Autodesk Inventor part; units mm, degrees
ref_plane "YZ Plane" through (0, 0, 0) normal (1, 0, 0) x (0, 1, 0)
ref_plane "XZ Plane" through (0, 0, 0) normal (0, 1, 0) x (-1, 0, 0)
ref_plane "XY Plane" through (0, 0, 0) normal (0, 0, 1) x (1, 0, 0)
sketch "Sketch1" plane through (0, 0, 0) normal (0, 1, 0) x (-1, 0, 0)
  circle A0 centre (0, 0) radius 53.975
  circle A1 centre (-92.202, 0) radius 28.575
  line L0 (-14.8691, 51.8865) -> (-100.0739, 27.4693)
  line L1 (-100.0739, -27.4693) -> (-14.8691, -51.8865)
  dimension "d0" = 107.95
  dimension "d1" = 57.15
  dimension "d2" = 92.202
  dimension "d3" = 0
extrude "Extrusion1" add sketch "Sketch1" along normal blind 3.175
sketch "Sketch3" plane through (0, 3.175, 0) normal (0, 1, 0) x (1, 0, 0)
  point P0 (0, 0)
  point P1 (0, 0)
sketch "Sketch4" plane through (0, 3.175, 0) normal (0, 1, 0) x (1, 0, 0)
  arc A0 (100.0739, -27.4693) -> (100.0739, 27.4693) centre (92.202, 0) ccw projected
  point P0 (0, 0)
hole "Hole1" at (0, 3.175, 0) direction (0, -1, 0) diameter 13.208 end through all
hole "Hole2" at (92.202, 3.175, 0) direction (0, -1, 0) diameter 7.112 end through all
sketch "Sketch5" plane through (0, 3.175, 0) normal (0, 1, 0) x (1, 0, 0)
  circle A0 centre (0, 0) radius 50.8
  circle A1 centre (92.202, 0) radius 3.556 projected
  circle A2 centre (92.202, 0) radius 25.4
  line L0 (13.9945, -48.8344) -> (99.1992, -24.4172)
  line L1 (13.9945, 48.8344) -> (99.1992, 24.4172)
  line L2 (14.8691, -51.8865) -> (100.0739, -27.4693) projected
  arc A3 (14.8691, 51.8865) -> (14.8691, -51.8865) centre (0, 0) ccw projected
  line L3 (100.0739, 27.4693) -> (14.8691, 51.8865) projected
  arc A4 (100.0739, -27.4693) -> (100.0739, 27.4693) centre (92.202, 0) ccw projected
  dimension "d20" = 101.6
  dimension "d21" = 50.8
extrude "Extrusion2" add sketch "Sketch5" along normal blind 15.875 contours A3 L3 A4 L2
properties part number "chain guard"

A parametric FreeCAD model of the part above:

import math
import FreeCAD as App
import Part
import Sketcher
Q = App.Units.Quantity

doc = App.newDocument("Part")
body = doc.addObject("PartDesign::Body", "Body")

sketch1 = doc.addObject("Sketcher::SketchObject", "Sketch")
body.addObject(sketch1)
sketch1.AttachmentSupport = (doc.XZ_Plane, [""])
sketch1.MapMode = "FlatFace"
sketch1.addGeometry([
    Part.ArcOfCircle(Part.Circle(App.Vector(0, 0, 0), App.Vector(0, 0, 1), 53.975), math.radians(74.0093), math.radians(285.9907)),
    Part.LineSegment(App.Vector(14.8691, 51.8865, 0), App.Vector(100.0739, 27.4693, 0)),
    Part.ArcOfCircle(Part.Circle(App.Vector(92.202, 0, 0), App.Vector(0, 0, 1), 28.575), math.radians(-74.009242), math.radians(74.009242)),
    Part.LineSegment(App.Vector(100.0739, -27.4693, 0), App.Vector(14.8691, -51.8865, 0)),
], False)
sketch1.addConstraint([
    Sketcher.Constraint("Tangent", 0, 1, 1, 1),
    Sketcher.Constraint("Tangent", 1, 2, 2, 2),
    Sketcher.Constraint("Tangent", 2, 1, 3, 1),
    Sketcher.Constraint("Tangent", 3, 2, 0, 2),
    Sketcher.Constraint("Coincident", 0, 3, -1, 1),
    Sketcher.Constraint("PointOnObject", 2, 3, -1),
    Sketcher.Constraint("Radius", 0, Q("2.125 in")),
    Sketcher.Constraint("Radius", 2, Q("1.125 in")),
    Sketcher.Constraint("DistanceX", -1, 1, 2, 3, Q("3.63 in")),
])
pad1 = doc.addObject("PartDesign::Pad", "Pad")
body.addObject(pad1)
pad1.Profile = sketch1
pad1.Length = Q("0.125 in")
pad1.Reversed = True

sketch2 = doc.addObject("Sketcher::SketchObject", "Sketch001")
body.addObject(sketch2)
sketch2.AttachmentSupport = (doc.XZ_Plane, [""])
sketch2.MapMode = "FlatFace"
sketch2.AttachmentOffset = App.Placement(App.Vector(0, 0, -0.125 * 25.4), App.Rotation())
sketch2.addGeometry(Part.Circle(App.Vector(0, 0, 0), App.Vector(0, 0, 1), 6.604), False)
sketch2.addConstraint([
    Sketcher.Constraint("Coincident", 0, 3, -1, 1),
    Sketcher.Constraint("Diameter", 0, Q("0.52 in")),
])
doc.recompute()
hole = doc.addObject("PartDesign::Hole", "Hole")
body.addObject(hole)
hole.Profile = sketch2
hole.ThreadType = "None"
hole.Diameter = Q("0.52 in")
hole.DepthType = "ThroughAll"
hole.Reversed = True

sketch3 = doc.addObject("Sketcher::SketchObject", "Sketch002")
body.addObject(sketch3)
sketch3.AttachmentSupport = (doc.XZ_Plane, [""])
sketch3.MapMode = "FlatFace"
sketch3.AttachmentOffset = App.Placement(App.Vector(0, 0, -0.125 * 25.4), App.Rotation())
sketch3.addGeometry(Part.Circle(App.Vector(92.202, 0, 0), App.Vector(0, 0, 1), 3.556), False)
sketch3.addConstraint([
    Sketcher.Constraint("PointOnObject", 0, 3, -1),
    Sketcher.Constraint("Diameter", 0, Q("0.28 in")),
    Sketcher.Constraint("DistanceX", -1, 1, 0, 3, Q("3.63 in")),
])
doc.recompute()
hole2 = doc.addObject("PartDesign::Hole", "Hole001")
body.addObject(hole2)
hole2.Profile = sketch3
hole2.ThreadType = "None"
hole2.Diameter = Q("0.28 in")
hole2.DepthType = "ThroughAll"
hole2.Reversed = True

sketch4 = doc.addObject("Sketcher::SketchObject", "Sketch003")
body.addObject(sketch4)
sketch4.AttachmentSupport = (doc.XZ_Plane, [""])
sketch4.MapMode = "FlatFace"
sketch4.AttachmentOffset = App.Placement(App.Vector(0, 0, -0.125 * 25.4), App.Rotation())
sketch4.addGeometry([
    Part.ArcOfCircle(Part.Circle(App.Vector(0, 0, 0), App.Vector(0, 0, 1), 53.974985), math.radians(74.0093), math.radians(285.9907)),
    Part.LineSegment(App.Vector(14.8691, 51.8865, 0), App.Vector(100.0739, 27.4693, 0)),
    Part.ArcOfCircle(Part.Circle(App.Vector(92.202, 0, 0), App.Vector(0, 0, 1), 28.574976), math.radians(-74.009242), math.radians(74.009242)),
    Part.LineSegment(App.Vector(100.0739, -27.4693, 0), App.Vector(14.8691, -51.8865, 0)),
    Part.ArcOfCircle(Part.Circle(App.Vector(0, 0, 0), App.Vector(0, 0, 1), 50.8), math.radians(74.009258), math.radians(285.990742)),
    Part.LineSegment(App.Vector(13.9945, -48.8344, 0), App.Vector(99.1992, -24.4172, 0)),
    Part.ArcOfCircle(Part.Circle(App.Vector(92.202, 0, 0), App.Vector(0, 0, 1), 25.4), math.radians(-74.009366), math.radians(74.009366)),
    Part.LineSegment(App.Vector(99.1992, 24.4172, 0), App.Vector(13.9945, 48.8344, 0)),
], False)
sketch4.addConstraint([
    Sketcher.Constraint("Tangent", 0, 1, 1, 1),
    Sketcher.Constraint("Tangent", 1, 2, 2, 2),
    Sketcher.Constraint("Tangent", 2, 1, 3, 1),
    Sketcher.Constraint("Tangent", 3, 2, 0, 2),
    Sketcher.Constraint("Tangent", 4, 2, 5, 1),
    Sketcher.Constraint("Tangent", 5, 2, 6, 1),
    Sketcher.Constraint("Tangent", 6, 2, 7, 1),
    Sketcher.Constraint("Tangent", 7, 2, 4, 1),
    Sketcher.Constraint("Coincident", 0, 3, -1, 1),
    Sketcher.Constraint("Coincident", 4, 3, -1, 1),
    Sketcher.Constraint("Coincident", 6, 3, 2, 3),
    Sketcher.Constraint("PointOnObject", 2, 3, -1),
    Sketcher.Constraint("Parallel", 3, 5),
    Sketcher.Constraint("Radius", 4, Q("2 in")),
    Sketcher.Constraint("Radius", 6, Q("1 in")),
    Sketcher.Constraint("Radius", 0, Q("2.125 in")),
    Sketcher.Constraint("DistanceX", -1, 1, 2, 3, Q("3.63 in")),
])
pad2 = doc.addObject("PartDesign::Pad", "Pad001")
body.addObject(pad2)
pad2.Profile = sketch4
pad2.Length = Q("0.625 in")
pad2.Reversed = True

doc.recompute()
